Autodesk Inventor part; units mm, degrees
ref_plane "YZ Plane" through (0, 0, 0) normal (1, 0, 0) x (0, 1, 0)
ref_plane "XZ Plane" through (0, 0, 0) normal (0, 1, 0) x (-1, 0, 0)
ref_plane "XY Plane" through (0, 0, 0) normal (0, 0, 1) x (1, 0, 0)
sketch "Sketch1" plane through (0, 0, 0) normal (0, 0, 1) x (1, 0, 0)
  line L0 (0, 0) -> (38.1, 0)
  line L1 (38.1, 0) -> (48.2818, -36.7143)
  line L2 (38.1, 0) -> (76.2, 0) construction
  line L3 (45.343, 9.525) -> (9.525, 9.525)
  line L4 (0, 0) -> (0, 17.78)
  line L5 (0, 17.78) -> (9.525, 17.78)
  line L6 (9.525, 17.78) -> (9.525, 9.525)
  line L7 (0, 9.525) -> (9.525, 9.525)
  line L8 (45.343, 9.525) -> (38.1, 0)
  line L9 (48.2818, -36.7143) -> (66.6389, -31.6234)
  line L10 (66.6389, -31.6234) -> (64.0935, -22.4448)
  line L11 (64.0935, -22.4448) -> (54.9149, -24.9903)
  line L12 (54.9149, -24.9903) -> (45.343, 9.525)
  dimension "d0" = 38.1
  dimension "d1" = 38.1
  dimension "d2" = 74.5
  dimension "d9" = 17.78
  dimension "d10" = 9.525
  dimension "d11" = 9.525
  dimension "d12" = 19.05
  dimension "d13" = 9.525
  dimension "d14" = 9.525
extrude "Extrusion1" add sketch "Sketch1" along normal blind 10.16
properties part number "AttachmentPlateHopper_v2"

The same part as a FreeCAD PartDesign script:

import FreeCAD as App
import Part
import Sketcher
from FreeCAD import Vector
Q = App.Units.Quantity

doc = App.newDocument("Part")
params = doc.addObject("Spreadsheet::Sheet", "Params")
for row, (alias, value) in enumerate([
    ("sketch1_width", "1.5 in"),
    ("sketch1_height", "0.7 in"),
    ("sketch1_length", "1.5 in"),
    ("sketch1_length2", "0.75 in"),
    ("sketch1_width2", "0.375 in"),
    ("pad1_length", "0.4 in"),
], start=1):
    params.set(f"A{row}", alias)
    params.set(f"B{row}", "=" + value)
    params.setAlias(f"B{row}", alias)

body = doc.addObject("PartDesign::Body", "Body")

# Sketch on XY plane
sketch1 = body.newObject("Sketcher::SketchObject", "Sketch")
sketch1.AttachmentSupport = (doc.getObject("XY_Plane"), [""])
sketch1.MapMode = "FlatFace"
sketch1.addGeometry([
    Part.LineSegment(Vector(0, 0, 0), Vector(38, 0, 0)),  # 0
    Part.LineSegment(Vector(38, 0, 0), Vector(48, -37, 0)),  # 1
    Part.LineSegment(Vector(48, -37, 0), Vector(67, -32, 0)),  # 2
    Part.LineSegment(Vector(67, -32, 0), Vector(64, -22, 0)),  # 3
    Part.LineSegment(Vector(64, -22, 0), Vector(55, -25, 0)),  # 4
    Part.LineSegment(Vector(55, -25, 0), Vector(45, 10, 0)),  # 5
    Part.LineSegment(Vector(45, 10, 0), Vector(10, 10, 0)),  # 6
    Part.LineSegment(Vector(10, 10, 0), Vector(10, 18, 0)),  # 7
    Part.LineSegment(Vector(10, 18, 0), Vector(0, 18, 0)),  # 8
    Part.LineSegment(Vector(0, 18, 0), Vector(0, 0, 0)),  # 9
], False)
sketch1.addConstraint([
    Sketcher.Constraint("Coincident", 0, 2, 1, 1),
    Sketcher.Constraint("Coincident", 1, 2, 2, 1),
    Sketcher.Constraint("Coincident", 2, 2, 3, 1),
    Sketcher.Constraint("Coincident", 3, 2, 4, 1),
    Sketcher.Constraint("Coincident", 4, 2, 5, 1),
    Sketcher.Constraint("Coincident", 5, 2, 6, 1),
    Sketcher.Constraint("Coincident", 6, 2, 7, 1),
    Sketcher.Constraint("Coincident", 7, 2, 8, 1),
    Sketcher.Constraint("Coincident", 8, 2, 9, 1),
    Sketcher.Constraint("Coincident", 9, 2, 0, 1),
    Sketcher.Constraint("Horizontal", 0),
    Sketcher.Constraint("Horizontal", 6),
    Sketcher.Constraint("Vertical", 7),
    Sketcher.Constraint("Horizontal", 8),
    Sketcher.Constraint("Vertical", 9),
    Sketcher.Constraint("Coincident", 9, 2, -1, 1),
    Sketcher.Constraint("Perpendicular", 1, 2),
    Sketcher.Constraint("Perpendicular", 2, 3),
    Sketcher.Constraint("Perpendicular", 3, 4),
    Sketcher.Constraint("Perpendicular", 4, 5),
    Sketcher.Constraint("Equal", 3, 4),
    Sketcher.Constraint("DistanceX", 0, 1, 0, 2, Q("1.5 in")),
    Sketcher.Constraint("DistanceY", 9, 2, 9, 1, Q("0.7 in")),
    Sketcher.Constraint("Distance", 1, Q("1.5 in")),
    Sketcher.Constraint("Angle", 1, Q("-74.5 deg")),
    Sketcher.Constraint("Distance", 2, Q("0.75 in")),
    Sketcher.Constraint("DistanceX", 8, 2, 8, 1, Q("0.375 in")),
    Sketcher.Constraint("Distance", 3, Q("0.375 in")),
    Sketcher.Constraint("DistanceY", -1, 1, 5, 2, Q("0.375 in")),
])
sketch1.setExpression("Constraints[21]", "Params.sketch1_width")
sketch1.setExpression("Constraints[22]", "Params.sketch1_height")
sketch1.setExpression("Constraints[23]", "Params.sketch1_length")
sketch1.setExpression("Constraints[25]", "Params.sketch1_length2")
sketch1.setExpression("Constraints[26]", "Params.sketch1_width2")
pad1 = body.newObject("PartDesign::Pad", "Pad")
pad1.Profile = sketch1
pad1.setExpression("Length", "Params.pad1_length")

doc.recompute()
